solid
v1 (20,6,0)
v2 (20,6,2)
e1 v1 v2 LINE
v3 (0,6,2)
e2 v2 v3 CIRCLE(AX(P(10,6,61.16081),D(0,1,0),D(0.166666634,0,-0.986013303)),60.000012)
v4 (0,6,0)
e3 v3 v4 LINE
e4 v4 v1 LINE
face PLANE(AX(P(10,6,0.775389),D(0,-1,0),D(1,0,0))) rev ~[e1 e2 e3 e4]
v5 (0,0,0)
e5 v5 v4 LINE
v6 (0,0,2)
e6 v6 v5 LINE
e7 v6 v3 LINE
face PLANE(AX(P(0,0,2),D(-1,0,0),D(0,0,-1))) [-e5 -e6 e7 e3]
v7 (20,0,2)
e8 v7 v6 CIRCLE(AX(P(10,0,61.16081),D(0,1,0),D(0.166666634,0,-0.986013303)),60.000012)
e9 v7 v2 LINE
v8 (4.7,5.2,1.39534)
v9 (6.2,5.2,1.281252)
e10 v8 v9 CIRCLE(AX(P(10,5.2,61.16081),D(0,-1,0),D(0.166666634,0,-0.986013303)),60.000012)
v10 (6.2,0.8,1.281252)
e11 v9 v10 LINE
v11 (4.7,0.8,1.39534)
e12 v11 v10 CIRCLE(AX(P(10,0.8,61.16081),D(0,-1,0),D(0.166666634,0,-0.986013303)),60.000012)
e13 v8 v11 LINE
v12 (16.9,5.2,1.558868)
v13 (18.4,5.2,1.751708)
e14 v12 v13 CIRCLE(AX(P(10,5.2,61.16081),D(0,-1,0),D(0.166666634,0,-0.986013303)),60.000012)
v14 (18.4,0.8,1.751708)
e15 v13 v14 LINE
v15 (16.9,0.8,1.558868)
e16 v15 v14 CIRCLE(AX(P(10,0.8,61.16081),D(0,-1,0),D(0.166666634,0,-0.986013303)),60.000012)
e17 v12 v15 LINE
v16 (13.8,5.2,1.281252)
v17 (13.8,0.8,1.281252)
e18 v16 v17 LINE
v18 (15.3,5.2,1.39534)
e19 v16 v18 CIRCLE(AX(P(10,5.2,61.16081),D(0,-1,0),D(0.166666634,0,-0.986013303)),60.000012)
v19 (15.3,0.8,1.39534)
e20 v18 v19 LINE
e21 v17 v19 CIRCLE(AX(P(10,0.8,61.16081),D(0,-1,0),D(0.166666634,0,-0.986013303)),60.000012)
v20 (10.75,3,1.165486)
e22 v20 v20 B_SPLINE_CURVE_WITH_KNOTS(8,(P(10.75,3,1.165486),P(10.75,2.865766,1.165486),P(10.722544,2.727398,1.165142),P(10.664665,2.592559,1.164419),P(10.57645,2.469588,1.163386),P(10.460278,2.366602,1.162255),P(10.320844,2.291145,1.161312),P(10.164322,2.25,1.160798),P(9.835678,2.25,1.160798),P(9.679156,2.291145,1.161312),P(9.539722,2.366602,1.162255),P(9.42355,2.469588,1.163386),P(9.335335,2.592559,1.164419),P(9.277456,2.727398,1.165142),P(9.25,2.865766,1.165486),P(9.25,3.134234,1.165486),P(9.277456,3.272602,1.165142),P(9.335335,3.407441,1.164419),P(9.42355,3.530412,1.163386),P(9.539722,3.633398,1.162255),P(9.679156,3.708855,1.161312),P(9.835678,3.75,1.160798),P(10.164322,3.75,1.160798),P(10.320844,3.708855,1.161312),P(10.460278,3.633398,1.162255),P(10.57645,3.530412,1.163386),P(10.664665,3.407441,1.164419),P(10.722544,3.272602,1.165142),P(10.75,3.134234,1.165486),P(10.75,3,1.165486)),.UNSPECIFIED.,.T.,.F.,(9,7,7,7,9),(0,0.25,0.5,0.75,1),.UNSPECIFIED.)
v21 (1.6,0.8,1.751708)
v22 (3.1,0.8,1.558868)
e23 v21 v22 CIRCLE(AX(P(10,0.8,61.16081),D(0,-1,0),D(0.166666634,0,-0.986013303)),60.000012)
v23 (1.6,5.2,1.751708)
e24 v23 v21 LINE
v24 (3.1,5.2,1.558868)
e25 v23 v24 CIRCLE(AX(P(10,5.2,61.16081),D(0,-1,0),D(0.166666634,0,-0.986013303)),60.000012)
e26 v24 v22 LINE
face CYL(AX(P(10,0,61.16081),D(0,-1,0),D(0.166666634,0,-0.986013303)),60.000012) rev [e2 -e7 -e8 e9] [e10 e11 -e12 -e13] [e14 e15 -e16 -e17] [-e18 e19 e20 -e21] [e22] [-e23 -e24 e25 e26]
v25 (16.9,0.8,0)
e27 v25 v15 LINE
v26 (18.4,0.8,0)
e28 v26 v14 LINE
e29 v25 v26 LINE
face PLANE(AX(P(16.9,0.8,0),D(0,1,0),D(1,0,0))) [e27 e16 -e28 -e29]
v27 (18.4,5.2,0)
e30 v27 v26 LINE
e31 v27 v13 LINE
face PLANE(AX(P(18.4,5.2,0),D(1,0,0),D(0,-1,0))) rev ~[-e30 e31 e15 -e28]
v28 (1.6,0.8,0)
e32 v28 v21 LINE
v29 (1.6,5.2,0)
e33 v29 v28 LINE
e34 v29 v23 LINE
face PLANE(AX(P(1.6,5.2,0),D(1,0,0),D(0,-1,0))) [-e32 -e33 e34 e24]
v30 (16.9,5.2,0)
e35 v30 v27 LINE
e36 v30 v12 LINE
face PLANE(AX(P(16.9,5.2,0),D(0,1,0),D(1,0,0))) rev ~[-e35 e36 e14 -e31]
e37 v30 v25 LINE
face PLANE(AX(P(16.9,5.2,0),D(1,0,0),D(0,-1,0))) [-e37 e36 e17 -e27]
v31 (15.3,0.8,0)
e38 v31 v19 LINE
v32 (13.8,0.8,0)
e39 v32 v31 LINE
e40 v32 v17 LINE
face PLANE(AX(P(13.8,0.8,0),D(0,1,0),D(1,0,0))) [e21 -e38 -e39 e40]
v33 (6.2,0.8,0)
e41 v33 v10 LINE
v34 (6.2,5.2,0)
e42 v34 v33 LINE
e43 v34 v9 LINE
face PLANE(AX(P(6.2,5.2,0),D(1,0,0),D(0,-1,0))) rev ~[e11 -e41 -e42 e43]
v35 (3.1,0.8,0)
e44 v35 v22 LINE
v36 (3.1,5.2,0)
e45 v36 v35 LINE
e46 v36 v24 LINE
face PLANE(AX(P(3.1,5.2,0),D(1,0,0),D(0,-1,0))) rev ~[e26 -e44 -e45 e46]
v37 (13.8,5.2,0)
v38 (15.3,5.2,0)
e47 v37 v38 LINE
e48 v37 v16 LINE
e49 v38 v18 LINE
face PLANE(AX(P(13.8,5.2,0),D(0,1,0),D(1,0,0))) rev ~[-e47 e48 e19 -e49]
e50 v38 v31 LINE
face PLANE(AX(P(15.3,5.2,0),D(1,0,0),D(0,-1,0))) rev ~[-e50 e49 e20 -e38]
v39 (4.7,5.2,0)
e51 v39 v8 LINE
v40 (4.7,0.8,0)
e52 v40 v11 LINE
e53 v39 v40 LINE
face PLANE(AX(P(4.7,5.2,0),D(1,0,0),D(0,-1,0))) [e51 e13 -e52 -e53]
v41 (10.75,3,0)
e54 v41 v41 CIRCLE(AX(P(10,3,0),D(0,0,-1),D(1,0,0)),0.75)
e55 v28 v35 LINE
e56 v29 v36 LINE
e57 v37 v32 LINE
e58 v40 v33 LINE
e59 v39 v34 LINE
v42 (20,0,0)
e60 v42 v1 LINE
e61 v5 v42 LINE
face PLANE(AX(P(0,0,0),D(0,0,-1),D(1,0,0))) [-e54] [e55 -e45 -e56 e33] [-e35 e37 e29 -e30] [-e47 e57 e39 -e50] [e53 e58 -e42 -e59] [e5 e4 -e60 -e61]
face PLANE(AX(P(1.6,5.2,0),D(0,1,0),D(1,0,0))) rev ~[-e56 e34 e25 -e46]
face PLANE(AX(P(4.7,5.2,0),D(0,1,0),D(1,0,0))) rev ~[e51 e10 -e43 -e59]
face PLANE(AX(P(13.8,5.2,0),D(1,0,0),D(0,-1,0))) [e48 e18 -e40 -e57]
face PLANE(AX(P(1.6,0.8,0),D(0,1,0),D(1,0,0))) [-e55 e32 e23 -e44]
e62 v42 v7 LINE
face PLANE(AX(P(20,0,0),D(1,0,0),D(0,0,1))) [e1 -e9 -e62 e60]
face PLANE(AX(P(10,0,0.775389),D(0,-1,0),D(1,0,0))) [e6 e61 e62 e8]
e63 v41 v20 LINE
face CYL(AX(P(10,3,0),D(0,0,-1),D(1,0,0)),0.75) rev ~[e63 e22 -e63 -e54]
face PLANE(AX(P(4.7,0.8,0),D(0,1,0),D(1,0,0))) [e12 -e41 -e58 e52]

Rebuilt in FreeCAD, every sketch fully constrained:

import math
import FreeCAD as App
import Part
import Sketcher

V = App.Vector
Q = App.Units.Quantity

doc = App.newDocument("Part")
body = doc.addObject("PartDesign::Body", "Body")

sketch1 = doc.addObject("Sketcher::SketchObject", "Sketch")
body.addObject(sketch1)
sketch1.AttachmentSupport = (doc.XZ_Plane, [""])
sketch1.MapMode = "FlatFace"
sketch1.addGeometry([
    Part.LineSegment(V(0, 2, 0), V(0, 0, 0)),
    Part.LineSegment(V(0, 0, 0), V(20, 0, 0)),
    Part.LineSegment(V(20, 0, 0), V(20, 2, 0)),
    Part.ArcOfCircle(Part.Circle(V(10, 61.2, 0), V(0, 0, 1), 60), math.radians(-99.59), math.radians(-80.41)),
], False)
sketch1.addConstraint([
    Sketcher.Constraint("Coincident", 0, 2, 1, 1),
    Sketcher.Constraint("Coincident", 1, 2, 2, 1),
    Sketcher.Constraint("Coincident", 2, 2, 3, 2),
    Sketcher.Constraint("Coincident", 3, 1, 0, 1),
    Sketcher.Constraint("Vertical", 0),
    Sketcher.Constraint("Horizontal", 1),
    Sketcher.Constraint("Vertical", 2),
    Sketcher.Constraint("Coincident", 0, 2, -1, 1),
    Sketcher.Constraint("Horizontal", 2, 2, 3, 1),
    Sketcher.Constraint("DistanceX", 1, 1, 1, 2, Q("20 mm")),
    Sketcher.Constraint("DistanceY", 0, 2, 0, 1, Q("2 mm")),
    Sketcher.Constraint("Radius", 3, Q("60.000012 mm")),
])
pad1 = doc.addObject("PartDesign::Pad", "Pad")
body.addObject(pad1)
pad1.Profile = sketch1
pad1.Length = 6
pad1.Reversed = True

sketch2 = doc.addObject("Sketcher::SketchObject", "Sketch001")
body.addObject(sketch2)
sketch2.AttachmentSupport = (doc.XY_Plane, [""])
sketch2.MapMode = "FlatFace"
sketch2.addGeometry(Part.Circle(V(10, 3, 0), V(0, 0, 1), 0.8), False)
sketch2.addConstraint([
    Sketcher.Constraint("Diameter", 0, Q("1.5 mm")),
    Sketcher.Constraint("DistanceX", -1, 1, 0, 3, Q("10 mm")),
    Sketcher.Constraint("DistanceY", -1, 1, 0, 3, Q("3 mm")),
])
pocket1 = doc.addObject("PartDesign::Pocket", "Pocket")
body.addObject(pocket1)
pocket1.Profile = sketch2
pocket1.Length = 25
pocket1.Reversed = True

sketch3 = doc.addObject("Sketcher::SketchObject", "Sketch002")
body.addObject(sketch3)
sketch3.AttachmentSupport = (doc.XY_Plane, [""])
sketch3.MapMode = "FlatFace"
sketch3.addGeometry([
    Part.LineSegment(V(4.7, 0.8, 0), V(4.7, 5.2, 0)),
    Part.LineSegment(V(4.7, 5.2, 0), V(6.2, 5.2, 0)),
    Part.LineSegment(V(6.2, 5.2, 0), V(6.2, 0.8, 0)),
    Part.LineSegment(V(6.2, 0.8, 0), V(4.7, 0.8, 0)),
    Part.LineSegment(V(1.6, 0.8, 0), V(1.6, 5.2, 0)),
    Part.LineSegment(V(1.6, 5.2, 0), V(3.1, 5.2, 0)),
    Part.LineSegment(V(3.1, 5.2, 0), V(3.1, 0.8, 0)),
    Part.LineSegment(V(3.1, 0.8, 0), V(1.6, 0.8, 0)),
    Part.LineSegment(V(13.8, 0.8, 0), V(13.8, 5.2, 0)),
    Part.LineSegment(V(13.8, 5.2, 0), V(15.3, 5.2, 0)),
    Part.LineSegment(V(15.3, 5.2, 0), V(15.3, 0.8, 0)),
    Part.LineSegment(V(15.3, 0.8, 0), V(13.8, 0.8, 0)),
    Part.LineSegment(V(16.9, 0.8, 0), V(16.9, 5.2, 0)),
    Part.LineSegment(V(16.9, 5.2, 0), V(18.4, 5.2, 0)),
    Part.LineSegment(V(18.4, 5.2, 0), V(18.4, 0.8, 0)),
    Part.LineSegment(V(18.4, 0.8, 0), V(16.9, 0.8, 0)),
], False)
sketch3.addConstraint([
    Sketcher.Constraint("Coincident", 0, 2, 1, 1),
    Sketcher.Constraint("Coincident", 1, 2, 2, 1),
    Sketcher.Constraint("Coincident", 2, 2, 3, 1),
    Sketcher.Constraint("Coincident", 3, 2, 0, 1),
    Sketcher.Constraint("Coincident", 4, 2, 5, 1),
    Sketcher.Constraint("Coincident", 5, 2, 6, 1),
    Sketcher.Constraint("Coincident", 6, 2, 7, 1),
    Sketcher.Constraint("Coincident", 7, 2, 4, 1),
    Sketcher.Constraint("Coincident", 8, 2, 9, 1),
    Sketcher.Constraint("Coincident", 9, 2, 10, 1),
    Sketcher.Constraint("Coincident", 10, 2, 11, 1),
    Sketcher.Constraint("Coincident", 11, 2, 8, 1),
    Sketcher.Constraint("Coincident", 12, 2, 13, 1),
    Sketcher.Constraint("Coincident", 13, 2, 14, 1),
    Sketcher.Constraint("Coincident", 14, 2, 15, 1),
    Sketcher.Constraint("Coincident", 15, 2, 12, 1),
    Sketcher.Constraint("Vertical", 0),
    Sketcher.Constraint("Horizontal", 1),
    Sketcher.Constraint("Vertical", 2),
    Sketcher.Constraint("Horizontal", 3),
    Sketcher.Constraint("Vertical", 4),
    Sketcher.Constraint("Horizontal", 5),
    Sketcher.Constraint("Vertical", 6),
    Sketcher.Constraint("Horizontal", 7),
    Sketcher.Constraint("Vertical", 8),
    Sketcher.Constraint("Horizontal", 9),
    Sketcher.Constraint("Vertical", 10),
    Sketcher.Constraint("Horizontal", 11),
    Sketcher.Constraint("Vertical", 12),
    Sketcher.Constraint("Horizontal", 13),
    Sketcher.Constraint("Vertical", 14),
    Sketcher.Constraint("Horizontal", 15),
    Sketcher.Constraint("Horizontal", 1, 2, 4, 2),
    Sketcher.Constraint("Horizontal", 3, 2, 6, 2),
    Sketcher.Constraint("Horizontal", 5, 2, 8, 2),
    Sketcher.Constraint("Horizontal", 7, 2, 10, 2),
    Sketcher.Constraint("Horizontal", 9, 2, 12, 2),
    Sketcher.Constraint("Horizontal", 11, 2, 14, 2),
    Sketcher.Constraint("Equal", 3, 5),
    Sketcher.Constraint("Equal", 7, 9),
    Sketcher.Constraint("Equal", 11, 13),
    Sketcher.Constraint("DistanceX", 1, 1, 1, 2, Q("1.5 mm")),
    Sketcher.Constraint("DistanceY", 0, 1, 0, 2, Q("4.4 mm")),
    Sketcher.Constraint("DistanceX", -1, 1, 0, 2, Q("4.7 mm")),
    Sketcher.Constraint("DistanceY", -1, 1, 0, 2, Q("5.2 mm")),
    Sketcher.Constraint("DistanceX", -1, 1, 4, 2, Q("1.6 mm")),
    Sketcher.Constraint("DistanceX", -1, 1, 8, 2, Q("13.8 mm")),
    Sketcher.Constraint("DistanceX", -1, 1, 12, 2, Q("16.9 mm")),
])
pocket2 = doc.addObject("PartDesign::Pocket", "Pocket001")
body.addObject(pocket2)
pocket2.Profile = sketch3
pocket2.Length = 25
pocket2.Reversed = True

doc.recompute()
